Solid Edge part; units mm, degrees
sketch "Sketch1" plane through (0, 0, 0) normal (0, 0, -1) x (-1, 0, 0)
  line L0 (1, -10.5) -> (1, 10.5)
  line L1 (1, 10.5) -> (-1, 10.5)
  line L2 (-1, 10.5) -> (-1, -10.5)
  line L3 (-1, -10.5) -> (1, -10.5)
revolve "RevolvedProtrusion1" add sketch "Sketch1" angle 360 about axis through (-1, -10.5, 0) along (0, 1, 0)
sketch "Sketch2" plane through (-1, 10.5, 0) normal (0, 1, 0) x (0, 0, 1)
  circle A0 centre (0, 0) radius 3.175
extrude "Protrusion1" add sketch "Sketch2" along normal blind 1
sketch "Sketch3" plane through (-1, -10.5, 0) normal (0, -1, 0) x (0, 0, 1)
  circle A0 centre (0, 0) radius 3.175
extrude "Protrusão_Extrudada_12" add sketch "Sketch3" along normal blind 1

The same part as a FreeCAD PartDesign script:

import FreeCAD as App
import Part
import Sketcher

V = App.Vector

doc = App.newDocument("Part")
body = doc.addObject("PartDesign::Body", "Body")

sketch1 = doc.addObject("Sketcher::SketchObject", "Sketch")
body.addObject(sketch1)
sketch1.AttachmentSupport = (doc.XY_Plane, [""])
sketch1.MapMode = "FlatFace"
sketch1.addGeometry(Part.LineSegment(V(1, -10.5, 0), V(-1, -10.5, 0)), False)
sketch1.addGeometry(Part.LineSegment(V(-1, -10.5, 0), V(-1, 10.5, 0)), False)
sketch1.addGeometry(Part.LineSegment(V(-1, 10.5, 0), V(1, 10.5, 0)), False)
sketch1.addGeometry(Part.LineSegment(V(1, 10.5, 0), V(1, -10.5, 0)), False)
sketch1.addGeometry(Part.LineSegment(V(-1, -10.5, 0), V(-1, 10.5, 0)), True)
sketch1.addConstraint(Sketcher.Constraint("Coincident", 0, 2, 1, 1))
sketch1.addConstraint(Sketcher.Constraint("Coincident", 1, 2, 2, 1))
sketch1.addConstraint(Sketcher.Constraint("Coincident", 2, 2, 3, 1))
sketch1.addConstraint(Sketcher.Constraint("Coincident", 3, 2, 0, 1))
sketch1.addConstraint(Sketcher.Constraint("Horizontal", 0))
sketch1.addConstraint(Sketcher.Constraint("Vertical", 1))
sketch1.addConstraint(Sketcher.Constraint("Horizontal", 2))
sketch1.addConstraint(Sketcher.Constraint("Vertical", 3))
sketch1.addConstraint(Sketcher.Constraint("Vertical", 4))
sketch1.addConstraint(Sketcher.Constraint("Coincident", 4, 1, 0, 2))
sketch1.addConstraint(Sketcher.Constraint("Symmetric", 0, 2, 2, 2, -1, 1))
sketch1.addConstraint(Sketcher.Constraint("Horizontal", 2, 2, 4, 2))
sketch1.addConstraint(Sketcher.Constraint("DistanceX", 0, 2, 0, 1, 2.0))
sketch1.addConstraint(Sketcher.Constraint("DistanceY", 1, 1, 1, 2, 21.0))
revolution = doc.addObject("PartDesign::Revolution", "Revolution")
body.addObject(revolution)
revolution.Profile = sketch1
revolution.ReferenceAxis = (sketch1, ["Axis0"])
revolution.Angle = 360

sketch2 = doc.addObject("Sketcher::SketchObject", "Sketch001")
body.addObject(sketch2)
sketch2.AttachmentSupport = (doc.XZ_Plane, [""])
sketch2.MapMode = "FlatFace"
sketch2.AttachmentOffset = App.Placement(V(0, 0, -10.5), App.Rotation())
sketch2.addGeometry(Part.Circle(V(-1, 0, 0), V(0, 0, 1), 3.175), False)
sketch2.addConstraint(Sketcher.Constraint("PointOnObject", 0, 3, -1))
sketch2.addConstraint(Sketcher.Constraint("Diameter", 0, 6.35))
sketch2.addConstraint(Sketcher.Constraint("DistanceX", 0, 3, -1, 1, 1.0))
pad1 = doc.addObject("PartDesign::Pad", "Pad")
body.addObject(pad1)
pad1.Profile = sketch2
pad1.Length = 1
pad1.Reversed = True

sketch3 = doc.addObject("Sketcher::SketchObject", "Sketch002")
body.addObject(sketch3)
sketch3.AttachmentSupport = (doc.XZ_Plane, [""])
sketch3.MapMode = "FlatFace"
sketch3.AttachmentOffset = App.Placement(V(0, 0, 10.5), App.Rotation())
sketch3.addGeometry(Part.Circle(V(-1, 0, 0), V(0, 0, 1), 3.175), False)
sketch3.addConstraint(Sketcher.Constraint("PointOnObject", 0, 3, -1))
sketch3.addConstraint(Sketcher.Constraint("Diameter", 0, 6.35))
sketch3.addConstraint(Sketcher.Constraint("DistanceX", 0, 3, -1, 1, 1.0))
pad2 = doc.addObject("PartDesign::Pad", "Pad001")
body.addObject(pad2)
pad2.Profile = sketch3
pad2.Length = 1

doc.recompute()
